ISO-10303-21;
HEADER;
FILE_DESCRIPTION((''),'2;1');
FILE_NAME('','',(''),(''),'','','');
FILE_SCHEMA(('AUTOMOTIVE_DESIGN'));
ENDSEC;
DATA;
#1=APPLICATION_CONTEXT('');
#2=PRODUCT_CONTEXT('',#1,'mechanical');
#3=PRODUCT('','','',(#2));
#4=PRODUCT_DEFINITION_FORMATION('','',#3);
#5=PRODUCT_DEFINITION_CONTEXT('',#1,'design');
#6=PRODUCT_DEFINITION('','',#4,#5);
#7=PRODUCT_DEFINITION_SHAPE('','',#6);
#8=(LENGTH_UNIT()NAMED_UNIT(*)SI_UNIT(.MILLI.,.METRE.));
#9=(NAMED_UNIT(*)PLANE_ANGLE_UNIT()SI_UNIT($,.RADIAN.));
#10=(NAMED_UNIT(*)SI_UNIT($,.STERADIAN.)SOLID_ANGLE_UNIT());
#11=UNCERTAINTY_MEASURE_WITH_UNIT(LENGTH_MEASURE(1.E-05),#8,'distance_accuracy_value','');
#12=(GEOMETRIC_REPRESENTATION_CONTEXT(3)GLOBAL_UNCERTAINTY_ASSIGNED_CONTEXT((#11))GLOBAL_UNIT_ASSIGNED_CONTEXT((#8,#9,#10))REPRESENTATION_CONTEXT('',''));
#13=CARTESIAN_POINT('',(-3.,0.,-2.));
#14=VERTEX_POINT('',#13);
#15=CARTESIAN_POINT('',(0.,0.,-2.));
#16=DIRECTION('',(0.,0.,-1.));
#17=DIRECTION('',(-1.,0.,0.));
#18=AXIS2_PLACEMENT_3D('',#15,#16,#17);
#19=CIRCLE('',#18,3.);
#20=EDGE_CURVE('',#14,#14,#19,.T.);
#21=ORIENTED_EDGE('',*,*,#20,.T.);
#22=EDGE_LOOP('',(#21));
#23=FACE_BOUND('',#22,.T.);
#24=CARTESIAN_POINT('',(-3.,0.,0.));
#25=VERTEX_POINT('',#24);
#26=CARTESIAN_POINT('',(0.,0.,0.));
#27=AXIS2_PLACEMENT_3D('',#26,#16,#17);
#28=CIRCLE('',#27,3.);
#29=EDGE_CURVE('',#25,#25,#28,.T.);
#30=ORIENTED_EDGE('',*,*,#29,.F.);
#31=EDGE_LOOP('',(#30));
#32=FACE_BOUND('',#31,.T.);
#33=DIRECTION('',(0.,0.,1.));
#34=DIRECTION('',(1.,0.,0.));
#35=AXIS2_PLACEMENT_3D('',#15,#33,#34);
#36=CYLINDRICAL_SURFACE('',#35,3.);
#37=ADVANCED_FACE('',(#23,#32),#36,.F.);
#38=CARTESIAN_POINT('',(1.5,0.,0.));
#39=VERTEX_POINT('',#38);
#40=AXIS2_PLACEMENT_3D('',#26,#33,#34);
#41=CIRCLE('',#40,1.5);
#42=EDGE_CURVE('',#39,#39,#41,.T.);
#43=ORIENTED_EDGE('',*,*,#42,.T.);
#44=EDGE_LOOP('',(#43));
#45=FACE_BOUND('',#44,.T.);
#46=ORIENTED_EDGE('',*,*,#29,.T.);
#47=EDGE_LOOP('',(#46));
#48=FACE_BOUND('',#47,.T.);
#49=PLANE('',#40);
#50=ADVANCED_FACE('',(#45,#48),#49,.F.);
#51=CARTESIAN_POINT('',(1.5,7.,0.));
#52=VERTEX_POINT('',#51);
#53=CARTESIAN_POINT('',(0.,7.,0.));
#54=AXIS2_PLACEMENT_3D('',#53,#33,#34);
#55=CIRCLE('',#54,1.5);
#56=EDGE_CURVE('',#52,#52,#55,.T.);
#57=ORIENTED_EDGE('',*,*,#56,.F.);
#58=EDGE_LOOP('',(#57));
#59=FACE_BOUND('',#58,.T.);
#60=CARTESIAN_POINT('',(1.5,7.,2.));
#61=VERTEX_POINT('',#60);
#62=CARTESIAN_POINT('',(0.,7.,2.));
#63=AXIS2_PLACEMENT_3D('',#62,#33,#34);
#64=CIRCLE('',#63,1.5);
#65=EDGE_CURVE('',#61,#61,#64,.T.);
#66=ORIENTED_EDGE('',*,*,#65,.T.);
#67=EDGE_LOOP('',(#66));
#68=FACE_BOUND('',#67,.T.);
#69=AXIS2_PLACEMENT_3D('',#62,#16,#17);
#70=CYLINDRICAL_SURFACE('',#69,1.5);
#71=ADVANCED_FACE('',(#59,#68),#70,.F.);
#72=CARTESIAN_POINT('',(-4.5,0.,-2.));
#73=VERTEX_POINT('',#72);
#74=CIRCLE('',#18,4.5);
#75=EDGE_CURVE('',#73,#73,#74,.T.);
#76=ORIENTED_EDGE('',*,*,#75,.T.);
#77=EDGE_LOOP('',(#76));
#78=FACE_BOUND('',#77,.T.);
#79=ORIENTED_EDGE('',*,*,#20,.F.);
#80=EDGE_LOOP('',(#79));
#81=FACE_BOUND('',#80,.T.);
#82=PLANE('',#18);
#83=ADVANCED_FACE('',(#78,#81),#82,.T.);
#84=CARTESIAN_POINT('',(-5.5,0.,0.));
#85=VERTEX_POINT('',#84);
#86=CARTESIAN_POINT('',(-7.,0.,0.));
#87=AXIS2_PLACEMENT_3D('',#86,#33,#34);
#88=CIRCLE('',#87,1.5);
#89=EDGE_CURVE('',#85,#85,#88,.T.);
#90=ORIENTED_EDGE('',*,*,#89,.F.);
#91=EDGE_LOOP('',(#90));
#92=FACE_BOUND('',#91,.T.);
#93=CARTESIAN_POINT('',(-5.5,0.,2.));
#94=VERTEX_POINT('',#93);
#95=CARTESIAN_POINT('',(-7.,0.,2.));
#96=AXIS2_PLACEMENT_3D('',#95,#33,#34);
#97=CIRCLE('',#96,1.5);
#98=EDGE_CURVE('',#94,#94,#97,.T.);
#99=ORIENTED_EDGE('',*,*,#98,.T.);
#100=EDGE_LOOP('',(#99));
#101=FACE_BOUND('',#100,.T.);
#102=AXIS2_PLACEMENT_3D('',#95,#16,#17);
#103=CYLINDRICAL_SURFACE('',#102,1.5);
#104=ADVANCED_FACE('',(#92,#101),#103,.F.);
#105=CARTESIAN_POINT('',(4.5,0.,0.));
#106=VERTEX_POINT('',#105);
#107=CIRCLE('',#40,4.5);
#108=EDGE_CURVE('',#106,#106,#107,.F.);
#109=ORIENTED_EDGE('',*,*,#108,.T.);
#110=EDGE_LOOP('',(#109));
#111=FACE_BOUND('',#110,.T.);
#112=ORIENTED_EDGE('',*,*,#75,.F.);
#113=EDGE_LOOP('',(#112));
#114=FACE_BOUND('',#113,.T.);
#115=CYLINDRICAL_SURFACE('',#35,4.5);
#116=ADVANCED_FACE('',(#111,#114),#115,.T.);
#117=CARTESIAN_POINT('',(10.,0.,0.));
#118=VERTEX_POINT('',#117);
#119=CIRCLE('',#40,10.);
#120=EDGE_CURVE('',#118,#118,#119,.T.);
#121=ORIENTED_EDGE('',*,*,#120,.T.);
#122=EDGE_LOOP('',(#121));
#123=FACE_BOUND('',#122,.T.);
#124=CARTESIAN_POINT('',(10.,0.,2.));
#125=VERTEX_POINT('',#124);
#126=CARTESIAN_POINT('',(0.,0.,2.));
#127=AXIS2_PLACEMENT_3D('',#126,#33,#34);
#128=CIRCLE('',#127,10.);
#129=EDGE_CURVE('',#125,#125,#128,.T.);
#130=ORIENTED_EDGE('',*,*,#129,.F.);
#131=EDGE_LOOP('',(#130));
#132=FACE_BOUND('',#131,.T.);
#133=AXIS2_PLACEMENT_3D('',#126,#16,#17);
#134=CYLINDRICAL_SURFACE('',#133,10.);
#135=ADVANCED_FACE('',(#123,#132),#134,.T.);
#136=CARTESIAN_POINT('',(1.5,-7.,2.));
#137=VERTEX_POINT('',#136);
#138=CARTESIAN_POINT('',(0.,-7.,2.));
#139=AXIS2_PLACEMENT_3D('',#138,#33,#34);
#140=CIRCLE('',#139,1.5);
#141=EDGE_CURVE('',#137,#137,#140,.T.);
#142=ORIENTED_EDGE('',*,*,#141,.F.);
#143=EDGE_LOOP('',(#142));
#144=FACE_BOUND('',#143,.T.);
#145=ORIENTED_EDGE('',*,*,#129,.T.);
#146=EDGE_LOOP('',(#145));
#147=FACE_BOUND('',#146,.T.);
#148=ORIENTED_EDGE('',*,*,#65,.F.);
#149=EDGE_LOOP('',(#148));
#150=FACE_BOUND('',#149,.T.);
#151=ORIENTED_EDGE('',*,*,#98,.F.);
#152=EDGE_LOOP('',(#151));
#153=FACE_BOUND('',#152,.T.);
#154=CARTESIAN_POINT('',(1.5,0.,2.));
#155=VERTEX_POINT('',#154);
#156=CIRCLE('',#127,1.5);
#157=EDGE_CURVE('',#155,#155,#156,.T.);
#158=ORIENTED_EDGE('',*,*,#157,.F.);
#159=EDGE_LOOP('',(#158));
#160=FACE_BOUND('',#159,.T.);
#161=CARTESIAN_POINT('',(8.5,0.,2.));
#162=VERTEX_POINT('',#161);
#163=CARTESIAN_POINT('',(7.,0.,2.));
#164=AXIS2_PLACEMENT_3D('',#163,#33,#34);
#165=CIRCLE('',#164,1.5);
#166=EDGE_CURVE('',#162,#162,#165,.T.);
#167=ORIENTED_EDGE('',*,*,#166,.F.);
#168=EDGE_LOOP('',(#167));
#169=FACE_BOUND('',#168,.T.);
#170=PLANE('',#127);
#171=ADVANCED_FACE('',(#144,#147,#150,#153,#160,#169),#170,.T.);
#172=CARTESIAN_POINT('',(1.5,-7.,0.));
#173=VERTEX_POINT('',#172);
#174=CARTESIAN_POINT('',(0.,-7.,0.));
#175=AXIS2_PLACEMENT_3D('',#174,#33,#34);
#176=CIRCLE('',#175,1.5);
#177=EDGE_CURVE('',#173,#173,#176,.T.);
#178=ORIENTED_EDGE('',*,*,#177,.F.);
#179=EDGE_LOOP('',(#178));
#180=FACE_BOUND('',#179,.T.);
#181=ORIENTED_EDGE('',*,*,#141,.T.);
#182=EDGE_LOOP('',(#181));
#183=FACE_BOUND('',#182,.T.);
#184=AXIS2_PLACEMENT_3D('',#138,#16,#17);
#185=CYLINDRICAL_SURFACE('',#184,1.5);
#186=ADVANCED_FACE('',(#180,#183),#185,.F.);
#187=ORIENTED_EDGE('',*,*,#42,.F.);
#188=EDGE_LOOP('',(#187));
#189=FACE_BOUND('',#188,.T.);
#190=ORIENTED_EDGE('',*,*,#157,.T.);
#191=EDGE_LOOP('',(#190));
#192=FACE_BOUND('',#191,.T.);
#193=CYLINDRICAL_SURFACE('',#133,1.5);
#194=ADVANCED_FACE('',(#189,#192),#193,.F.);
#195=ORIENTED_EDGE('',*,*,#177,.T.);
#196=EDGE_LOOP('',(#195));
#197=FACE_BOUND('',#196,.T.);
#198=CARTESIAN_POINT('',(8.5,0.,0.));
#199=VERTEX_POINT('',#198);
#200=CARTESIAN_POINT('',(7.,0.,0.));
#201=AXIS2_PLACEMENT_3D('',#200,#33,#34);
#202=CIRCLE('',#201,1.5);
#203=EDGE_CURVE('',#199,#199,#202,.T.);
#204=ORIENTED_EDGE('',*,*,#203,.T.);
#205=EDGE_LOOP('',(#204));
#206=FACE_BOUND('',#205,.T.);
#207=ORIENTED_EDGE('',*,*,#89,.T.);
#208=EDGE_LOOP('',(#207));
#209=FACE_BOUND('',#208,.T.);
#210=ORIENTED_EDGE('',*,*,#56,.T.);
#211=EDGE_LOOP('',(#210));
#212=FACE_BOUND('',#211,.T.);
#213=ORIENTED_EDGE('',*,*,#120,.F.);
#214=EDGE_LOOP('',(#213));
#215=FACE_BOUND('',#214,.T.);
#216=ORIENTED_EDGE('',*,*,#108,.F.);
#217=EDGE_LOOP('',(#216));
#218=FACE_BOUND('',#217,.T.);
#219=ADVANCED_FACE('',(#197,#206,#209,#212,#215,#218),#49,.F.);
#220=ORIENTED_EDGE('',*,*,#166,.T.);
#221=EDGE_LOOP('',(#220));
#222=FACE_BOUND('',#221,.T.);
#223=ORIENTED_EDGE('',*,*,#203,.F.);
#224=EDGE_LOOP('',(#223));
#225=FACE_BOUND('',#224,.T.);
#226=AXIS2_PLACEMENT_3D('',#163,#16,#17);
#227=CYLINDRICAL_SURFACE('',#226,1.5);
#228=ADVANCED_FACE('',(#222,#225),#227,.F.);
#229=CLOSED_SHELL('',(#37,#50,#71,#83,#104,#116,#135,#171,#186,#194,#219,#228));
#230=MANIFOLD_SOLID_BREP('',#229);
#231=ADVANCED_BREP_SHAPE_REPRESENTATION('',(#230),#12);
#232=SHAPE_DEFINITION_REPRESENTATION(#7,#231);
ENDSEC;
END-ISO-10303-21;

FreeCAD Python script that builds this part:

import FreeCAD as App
import Part
import Sketcher

doc = App.newDocument("Part")
body = doc.addObject("PartDesign::Body", "Body")

sketch1 = body.newObject("Sketcher::SketchObject", "Sketch")
sketch1.AttachmentSupport = (doc.getObject("XY_Plane"), [""])
sketch1.MapMode = "FlatFace"
sketch1.addGeometry([
    Part.Circle(App.Vector(0, 0, 0), App.Vector(0, 0, 1), 10),
    Part.Circle(App.Vector(0, -7, 0), App.Vector(0, 0, 1), 1.5),
    Part.Circle(App.Vector(-7, 0, 0), App.Vector(0, 0, 1), 1.5),
    Part.Circle(App.Vector(0, 0, 0), App.Vector(0, 0, 1), 1.5),
    Part.Circle(App.Vector(7, 0, 0), App.Vector(0, 0, 1), 1.5),
    Part.Circle(App.Vector(0, 7, 0), App.Vector(0, 0, 1), 1.5),
], False)
sketch1.addConstraint([
    Sketcher.Constraint("Coincident", 0, 3, -1, 1),
    Sketcher.Constraint("Coincident", 3, 3, -1, 1),
    Sketcher.Constraint("Equal", 1, 2),
    Sketcher.Constraint("Equal", 2, 3),
    Sketcher.Constraint("Equal", 3, 4),
    Sketcher.Constraint("Equal", 4, 5),
    Sketcher.Constraint("Symmetric", 2, 3, 4, 3, -1, 1),
    Sketcher.Constraint("Symmetric", 1, 3, 5, 3, -1, 1),
    Sketcher.Constraint("PointOnObject", 1, 3, -2),
    Sketcher.Constraint("PointOnObject", 2, 3, -1),
    Sketcher.Constraint("Diameter", 0, 20.0),
    Sketcher.Constraint("Diameter", 1, 3.0),
    Sketcher.Constraint("DistanceY", 1, 3, -1, 1, 7.0),
    Sketcher.Constraint("DistanceX", 2, 3, -1, 1, 7.0),
])
pad1 = body.newObject("PartDesign::Pad", "Pad")
pad1.Profile = sketch1
pad1.Length = 2

sketch2 = body.newObject("Sketcher::SketchObject", "Sketch001")
sketch2.AttachmentSupport = (doc.getObject("XY_Plane"), [""])
sketch2.MapMode = "FlatFace"
sketch2.addGeometry([
    Part.Circle(App.Vector(0, 0, 0), App.Vector(0, 0, 1), 4.5),
    Part.Circle(App.Vector(0, 0, 0), App.Vector(0, 0, 1), 3),
], False)
sketch2.addConstraint([
    Sketcher.Constraint("Coincident", 0, 3, -1, 1),
    Sketcher.Constraint("Coincident", 1, 3, -1, 1),
    Sketcher.Constraint("Diameter", 0, 9.0),
    Sketcher.Constraint("Diameter", 1, 6.0),
])
pad2 = body.newObject("PartDesign::Pad", "Pad001")
pad2.Profile = sketch2
pad2.Length = 2
pad2.Reversed = True

doc.recompute()
